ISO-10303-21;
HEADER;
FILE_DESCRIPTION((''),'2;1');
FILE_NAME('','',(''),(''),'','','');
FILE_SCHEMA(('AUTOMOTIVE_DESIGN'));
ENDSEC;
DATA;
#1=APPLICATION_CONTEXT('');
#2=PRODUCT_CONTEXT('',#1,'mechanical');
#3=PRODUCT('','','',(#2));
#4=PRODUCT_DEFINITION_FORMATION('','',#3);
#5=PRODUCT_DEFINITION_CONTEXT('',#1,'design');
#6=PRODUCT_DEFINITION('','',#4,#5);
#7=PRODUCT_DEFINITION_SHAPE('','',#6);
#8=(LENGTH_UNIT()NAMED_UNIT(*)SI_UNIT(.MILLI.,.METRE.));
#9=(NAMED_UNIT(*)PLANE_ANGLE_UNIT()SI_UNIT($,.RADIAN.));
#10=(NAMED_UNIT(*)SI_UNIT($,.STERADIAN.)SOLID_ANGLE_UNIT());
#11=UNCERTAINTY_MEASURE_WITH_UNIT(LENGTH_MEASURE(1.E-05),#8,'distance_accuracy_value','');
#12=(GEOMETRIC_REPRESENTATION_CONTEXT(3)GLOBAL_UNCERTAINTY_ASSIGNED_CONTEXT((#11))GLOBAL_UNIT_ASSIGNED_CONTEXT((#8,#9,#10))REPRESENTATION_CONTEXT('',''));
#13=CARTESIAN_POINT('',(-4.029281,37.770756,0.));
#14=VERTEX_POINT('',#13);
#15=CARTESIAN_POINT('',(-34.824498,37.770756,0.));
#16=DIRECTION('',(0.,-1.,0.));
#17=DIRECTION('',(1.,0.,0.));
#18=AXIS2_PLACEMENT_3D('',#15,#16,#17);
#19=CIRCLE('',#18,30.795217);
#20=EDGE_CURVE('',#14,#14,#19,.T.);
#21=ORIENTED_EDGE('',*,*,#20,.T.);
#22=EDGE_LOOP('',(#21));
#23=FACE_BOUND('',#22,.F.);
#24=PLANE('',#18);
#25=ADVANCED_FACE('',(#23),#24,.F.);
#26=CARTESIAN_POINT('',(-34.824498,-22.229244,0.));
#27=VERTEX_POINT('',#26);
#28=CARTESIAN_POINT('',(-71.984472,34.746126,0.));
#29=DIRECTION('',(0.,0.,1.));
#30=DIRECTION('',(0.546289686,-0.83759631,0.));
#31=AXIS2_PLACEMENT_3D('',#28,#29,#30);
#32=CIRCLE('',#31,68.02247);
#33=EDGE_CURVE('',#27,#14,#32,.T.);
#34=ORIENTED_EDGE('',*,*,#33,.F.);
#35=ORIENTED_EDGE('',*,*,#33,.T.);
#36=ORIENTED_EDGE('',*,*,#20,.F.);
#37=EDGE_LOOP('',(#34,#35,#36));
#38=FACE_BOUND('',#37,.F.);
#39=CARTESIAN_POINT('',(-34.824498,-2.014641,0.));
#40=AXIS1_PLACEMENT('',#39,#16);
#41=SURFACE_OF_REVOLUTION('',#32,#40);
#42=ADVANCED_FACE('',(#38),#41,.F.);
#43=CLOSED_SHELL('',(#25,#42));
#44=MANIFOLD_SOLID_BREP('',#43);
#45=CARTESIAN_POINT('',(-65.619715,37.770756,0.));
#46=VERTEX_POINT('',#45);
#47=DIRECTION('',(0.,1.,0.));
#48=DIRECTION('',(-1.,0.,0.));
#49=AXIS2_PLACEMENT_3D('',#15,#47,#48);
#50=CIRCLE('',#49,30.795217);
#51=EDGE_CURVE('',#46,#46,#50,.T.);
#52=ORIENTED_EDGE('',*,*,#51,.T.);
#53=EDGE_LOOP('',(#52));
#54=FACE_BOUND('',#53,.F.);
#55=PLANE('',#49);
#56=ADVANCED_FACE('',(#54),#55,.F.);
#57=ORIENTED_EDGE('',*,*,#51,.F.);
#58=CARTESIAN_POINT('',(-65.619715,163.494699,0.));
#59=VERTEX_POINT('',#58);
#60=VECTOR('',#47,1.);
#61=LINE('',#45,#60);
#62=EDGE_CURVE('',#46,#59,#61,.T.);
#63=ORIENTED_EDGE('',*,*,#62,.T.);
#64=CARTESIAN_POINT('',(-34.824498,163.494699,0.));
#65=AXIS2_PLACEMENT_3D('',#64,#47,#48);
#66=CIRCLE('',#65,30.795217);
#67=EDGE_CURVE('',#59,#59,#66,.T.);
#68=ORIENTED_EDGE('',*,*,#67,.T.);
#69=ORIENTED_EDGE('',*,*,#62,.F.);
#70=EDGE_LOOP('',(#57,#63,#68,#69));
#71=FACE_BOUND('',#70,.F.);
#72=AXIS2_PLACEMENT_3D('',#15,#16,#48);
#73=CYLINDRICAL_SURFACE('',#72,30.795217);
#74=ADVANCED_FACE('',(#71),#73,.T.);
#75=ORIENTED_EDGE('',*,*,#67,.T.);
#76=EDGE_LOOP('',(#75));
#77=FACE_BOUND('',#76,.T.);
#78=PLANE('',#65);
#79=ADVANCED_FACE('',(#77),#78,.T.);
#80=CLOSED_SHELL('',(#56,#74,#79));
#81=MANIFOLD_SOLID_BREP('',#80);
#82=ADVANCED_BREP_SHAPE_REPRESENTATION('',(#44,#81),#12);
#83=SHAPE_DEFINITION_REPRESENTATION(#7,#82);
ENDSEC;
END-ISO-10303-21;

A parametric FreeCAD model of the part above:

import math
import FreeCAD as App
import Part
import Sketcher
Q = App.Units.Quantity

doc = App.newDocument("Part")
body = doc.addObject("PartDesign::Body", "Body")

# Sketch on XY plane
sketch1 = body.newObject("Sketcher::SketchObject", "Sketch")
sketch1.AttachmentSupport = (doc.getObject("XY_Plane"), [""])
sketch1.MapMode = "FlatFace"
sketch1.addGeometry(Part.LineSegment(App.Vector(-4, 38, 0), App.Vector(-35, 38, 0)), False)
sketch1.addGeometry(Part.LineSegment(App.Vector(-35, 38, 0), App.Vector(-35, -22, 0)), False)
sketch1.addGeometry(Part.ArcOfCircle(Part.Circle(App.Vector(-72, 35, 0), App.Vector(0, 0, 1), 68), math.radians(-57), math.radians(3)), False)
sketch1.addGeometry(Part.LineSegment(App.Vector(-35, 38, 0), App.Vector(-35, -22, 0)), True)  # axis
sketch1.addConstraint(Sketcher.Constraint("Coincident", 0, 2, 1, 1))
sketch1.addConstraint(Sketcher.Constraint("Coincident", 1, 2, 2, 1))
sketch1.addConstraint(Sketcher.Constraint("Coincident", 2, 2, 0, 1))
sketch1.addConstraint(Sketcher.Constraint("Horizontal", 0))
sketch1.addConstraint(Sketcher.Constraint("Vertical", 1))
sketch1.addConstraint(Sketcher.Constraint("Vertical", 3))
sketch1.addConstraint(Sketcher.Constraint("Coincident", 3, 1, 0, 2))
sketch1.addConstraint(Sketcher.Constraint("Equal", 1, 3))
sketch1.addConstraint(Sketcher.Constraint("DistanceY", 1, 2, 1, 1, Q("60 mm")))
sketch1.addConstraint(Sketcher.Constraint("Radius", 2, Q("68.02247 mm")))
sketch1.addConstraint(Sketcher.Constraint("DistanceX", 0, 2, 0, 1, Q("30.795217 mm")))
sketch1.addConstraint(Sketcher.Constraint("DistanceX", 2, 3, -1, 1, Q("71.984472 mm")))
sketch1.addConstraint(Sketcher.Constraint("DistanceY", -1, 1, 2, 3, Q("34.746126 mm")))
revolution = body.newObject("PartDesign::Revolution", "Revolution")
revolution.Profile = sketch1
revolution.ReferenceAxis = (sketch1, ["Axis0"])
revolution.Angle = 360
body2 = doc.addObject("PartDesign::Body", "Body001")

# Sketch on XZ plane
sketch2 = body2.newObject("Sketcher::SketchObject", "Sketch001")
sketch2.AttachmentSupport = (doc.getObject("XZ_Plane001"), [""])
sketch2.MapMode = "FlatFace"
sketch2.AttachmentOffset = App.Placement(App.Vector(0, 0, -37.770756), App.Rotation())
sketch2.addGeometry(Part.Circle(App.Vector(-35, 0, 0), App.Vector(0, 0, 1), 31), False)
sketch2.addConstraint(Sketcher.Constraint("PointOnObject", 0, 3, -1))
sketch2.addConstraint(Sketcher.Constraint("Diameter", 0, Q("61.590435 mm")))
sketch2.addConstraint(Sketcher.Constraint("DistanceX", 0, 3, -1, 1, Q("34.824498 mm")))
pad1 = body2.newObject("PartDesign::Pad", "Pad")
pad1.Profile = sketch2
pad1.Length = 125.723943
pad1.Reversed = True

doc.recompute()
